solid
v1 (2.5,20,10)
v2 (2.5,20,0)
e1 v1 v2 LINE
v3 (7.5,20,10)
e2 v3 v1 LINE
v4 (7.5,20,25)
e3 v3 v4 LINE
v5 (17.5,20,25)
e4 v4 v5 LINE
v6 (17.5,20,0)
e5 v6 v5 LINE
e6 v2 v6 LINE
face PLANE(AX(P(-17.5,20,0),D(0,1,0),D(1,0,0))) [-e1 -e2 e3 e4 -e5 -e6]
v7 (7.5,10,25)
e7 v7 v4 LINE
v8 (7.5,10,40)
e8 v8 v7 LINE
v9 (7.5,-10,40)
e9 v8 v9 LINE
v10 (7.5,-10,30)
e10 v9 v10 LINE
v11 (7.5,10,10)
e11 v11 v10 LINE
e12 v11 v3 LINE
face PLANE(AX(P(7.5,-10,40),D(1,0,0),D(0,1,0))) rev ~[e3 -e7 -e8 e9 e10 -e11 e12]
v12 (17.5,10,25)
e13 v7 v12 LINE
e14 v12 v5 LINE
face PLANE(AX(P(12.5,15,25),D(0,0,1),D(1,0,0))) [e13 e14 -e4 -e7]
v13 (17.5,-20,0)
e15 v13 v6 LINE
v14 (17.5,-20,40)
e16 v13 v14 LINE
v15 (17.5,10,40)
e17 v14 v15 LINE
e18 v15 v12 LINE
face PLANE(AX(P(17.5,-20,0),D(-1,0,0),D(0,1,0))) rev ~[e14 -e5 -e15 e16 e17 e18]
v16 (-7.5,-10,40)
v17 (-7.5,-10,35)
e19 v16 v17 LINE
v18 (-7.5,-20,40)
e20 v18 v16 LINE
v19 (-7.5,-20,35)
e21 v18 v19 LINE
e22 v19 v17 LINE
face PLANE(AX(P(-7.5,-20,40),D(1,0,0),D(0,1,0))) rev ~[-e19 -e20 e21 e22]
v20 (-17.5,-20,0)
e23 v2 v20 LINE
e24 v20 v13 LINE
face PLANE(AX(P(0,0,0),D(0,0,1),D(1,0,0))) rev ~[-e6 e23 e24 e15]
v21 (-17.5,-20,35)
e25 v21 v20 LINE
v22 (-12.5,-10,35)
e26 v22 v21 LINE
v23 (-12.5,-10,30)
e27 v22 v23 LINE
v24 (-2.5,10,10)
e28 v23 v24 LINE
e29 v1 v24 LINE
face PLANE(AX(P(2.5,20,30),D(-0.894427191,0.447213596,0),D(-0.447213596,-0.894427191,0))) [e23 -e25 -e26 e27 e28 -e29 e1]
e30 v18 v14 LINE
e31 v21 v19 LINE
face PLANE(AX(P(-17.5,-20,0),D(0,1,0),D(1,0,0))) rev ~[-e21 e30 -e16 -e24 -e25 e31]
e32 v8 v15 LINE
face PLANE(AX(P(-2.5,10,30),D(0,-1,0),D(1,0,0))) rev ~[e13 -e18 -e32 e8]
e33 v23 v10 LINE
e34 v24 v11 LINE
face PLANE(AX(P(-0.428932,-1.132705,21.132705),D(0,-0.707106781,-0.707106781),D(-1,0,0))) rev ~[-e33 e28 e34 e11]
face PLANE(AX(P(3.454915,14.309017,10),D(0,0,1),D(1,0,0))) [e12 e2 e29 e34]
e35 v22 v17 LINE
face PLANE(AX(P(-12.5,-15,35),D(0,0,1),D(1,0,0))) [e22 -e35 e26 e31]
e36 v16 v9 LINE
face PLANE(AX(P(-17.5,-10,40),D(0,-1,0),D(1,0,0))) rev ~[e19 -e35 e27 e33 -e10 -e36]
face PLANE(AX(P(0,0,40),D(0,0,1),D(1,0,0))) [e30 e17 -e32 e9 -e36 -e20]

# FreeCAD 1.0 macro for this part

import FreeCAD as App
import Part
import Sketcher
from FreeCAD import Vector


def add_polygon(sketch, points):
    """Adds a closed chain of lines whose ends are joined by coincident constraints."""
    first, n = sketch.GeometryCount, len(points)
    for a, b in zip(points, points[1:] + points[:1]):
        sketch.addGeometry(Part.LineSegment(App.Vector(*a, 0), App.Vector(*b, 0)), False)
    for i in range(n):
        sketch.addConstraint(Sketcher.Constraint("Coincident", first + i, 2, first + (i + 1) % n, 1))

doc = App.newDocument("Part")
body = doc.addObject("PartDesign::Body", "Body")

# Sketch on XY plane
sketch1 = body.newObject("Sketcher::SketchObject", "Sketch")
sketch1.AttachmentSupport = (doc.getObject("XY_Plane"), [""])
sketch1.MapMode = "FlatFace"
add_polygon(sketch1, [(-18, 20), (-18, -20), (18, -20), (18, 20)])  # lines 0-3
sketch1.addConstraint(Sketcher.Constraint("Vertical", 0))
sketch1.addConstraint(Sketcher.Constraint("Horizontal", 1))
sketch1.addConstraint(Sketcher.Constraint("Vertical", 2))
sketch1.addConstraint(Sketcher.Constraint("Horizontal", 3))
sketch1.addConstraint(Sketcher.Constraint("Symmetric", 0, 2, 2, 2, -1, 1))
sketch1.addConstraint(Sketcher.Constraint("DistanceX", 1, 1, 1, 2, 35.0))
sketch1.addConstraint(Sketcher.Constraint("DistanceY", 0, 2, 0, 1, 40.0))
pad1 = body.newObject("PartDesign::Pad", "Pad")
pad1.Profile = sketch1
pad1.Length = 40

# Sketch on XY plane
sketch2 = body.newObject("Sketcher::SketchObject", "Sketch001")
sketch2.AttachmentSupport = (doc.getObject("XY_Plane"), [""])
sketch2.MapMode = "FlatFace"
sketch2.AttachmentOffset = App.Placement(Vector(0, 0, 40), App.Rotation())
add_polygon(sketch2, [(8, 20), (8, 10), (18, 10), (18, 20)])  # lines 0-3
sketch2.addConstraint(Sketcher.Constraint("Vertical", 0))
sketch2.addConstraint(Sketcher.Constraint("Horizontal", 1))
sketch2.addConstraint(Sketcher.Constraint("Vertical", 2))
sketch2.addConstraint(Sketcher.Constraint("Horizontal", 3))
sketch2.addConstraint(Sketcher.Constraint("Equal", 3, 0))
sketch2.addConstraint(Sketcher.Constraint("DistanceX", 1, 1, 1, 2, 10.0))
sketch2.addConstraint(Sketcher.Constraint("DistanceY", -1, 1, 0, 2, 10.0))
sketch2.addConstraint(Sketcher.Constraint("DistanceX", -1, 1, 0, 2, 7.5))
pocket1 = body.newObject("PartDesign::Pocket", "Pocket")
pocket1.Profile = sketch2
pocket1.Length = 15

# Sketch on XY plane
sketch3 = body.newObject("Sketcher::SketchObject", "Sketch002")
sketch3.AttachmentSupport = (doc.getObject("XY_Plane"), [""])
sketch3.MapMode = "FlatFace"
sketch3.AttachmentOffset = App.Placement(Vector(0, 0, 40), App.Rotation())
add_polygon(sketch3, [(-18, -10), (-18, -20), (-8, -20), (-8, -10)])  # lines 0-3
sketch3.addConstraint(Sketcher.Constraint("Vertical", 0))
sketch3.addConstraint(Sketcher.Constraint("Horizontal", 1))
sketch3.addConstraint(Sketcher.Constraint("Vertical", 2))
sketch3.addConstraint(Sketcher.Constraint("Horizontal", 3))
sketch3.addConstraint(Sketcher.Constraint("Equal", 3, 0))
sketch3.addConstraint(Sketcher.Constraint("DistanceX", 1, 1, 1, 2, 10.0))
sketch3.addConstraint(Sketcher.Constraint("DistanceY", 0, 2, -1, 1, 20.0))
sketch3.addConstraint(Sketcher.Constraint("DistanceX", 0, 2, -1, 1, 17.5))
pocket2 = body.newObject("PartDesign::Pocket", "Pocket001")
pocket2.Profile = sketch3
pocket2.Length = 5

# Sketch on XY plane
sketch4 = body.newObject("Sketcher::SketchObject", "Sketch003")
sketch4.AttachmentSupport = (doc.getObject("XY_Plane"), [""])
sketch4.MapMode = "FlatFace"
sketch4.AttachmentOffset = App.Placement(Vector(0, 0, 40), App.Rotation())
add_polygon(sketch4, [(-18, 20), (-18, -10), (8, -10), (8, 20)])  # lines 0-3
sketch4.addConstraint(Sketcher.Constraint("Vertical", 0))
sketch4.addConstraint(Sketcher.Constraint("Horizontal", 1))
sketch4.addConstraint(Sketcher.Constraint("Vertical", 2))
sketch4.addConstraint(Sketcher.Constraint("Horizontal", 3))
sketch4.addConstraint(Sketcher.Constraint("DistanceX", 1, 1, 1, 2, 25.0))
sketch4.addConstraint(Sketcher.Constraint("DistanceY", 0, 2, 0, 1, 30.0))
sketch4.addConstraint(Sketcher.Constraint("DistanceY", 0, 2, -1, 1, 10.0))
sketch4.addConstraint(Sketcher.Constraint("DistanceX", 0, 2, -1, 1, 17.5))
pocket3 = body.newObject("PartDesign::Pocket", "Pocket002")
pocket3.Profile = sketch4
pocket3.Length = 10

# Sketch on XY plane
sketch5 = body.newObject("Sketcher::SketchObject", "Sketch004")
sketch5.AttachmentSupport = (doc.getObject("XY_Plane"), [""])
sketch5.MapMode = "FlatFace"
sketch5.AttachmentOffset = App.Placement(Vector(0, 0, 30), App.Rotation())
add_polygon(sketch5, [(-18, -20), (2, 20), (-18, 20)])  # lines 0-2
sketch5.addConstraint(Sketcher.Constraint("Horizontal", 1))
sketch5.addConstraint(Sketcher.Constraint("Vertical", 2))
sketch5.addConstraint(Sketcher.Constraint("DistanceX", 1, 2, 1, 1, 20.0))
sketch5.addConstraint(Sketcher.Constraint("DistanceY", 2, 2, 2, 1, 40.0))
sketch5.addConstraint(Sketcher.Constraint("DistanceY", -1, 1, 0, 2, 20.0))
sketch5.addConstraint(Sketcher.Constraint("DistanceX", -1, 1, 0, 2, 2.5))
pocket4 = body.newObject("PartDesign::Pocket", "Pocket003")
pocket4.Profile = sketch5
pocket4.Type = "ThroughAll"

# Sketch on XY plane
sketch6 = body.newObject("Sketcher::SketchObject", "Sketch005")
sketch6.AttachmentSupport = (doc.getObject("XY_Plane"), [""])
sketch6.MapMode = "FlatFace"
sketch6.AttachmentOffset = App.Placement(Vector(0, 0, 35), App.Rotation())
add_polygon(sketch6, [(-18, -20), (-12, -10), (-18, -10)])  # lines 0-2
sketch6.addConstraint(Sketcher.Constraint("Horizontal", 1))
sketch6.addConstraint(Sketcher.Constraint("Vertical", 2))
sketch6.addConstraint(Sketcher.Constraint("DistanceX", 1, 2, 1, 1, 5.0))
sketch6.addConstraint(Sketcher.Constraint("DistanceY", 2, 2, 2, 1, 10.0))
sketch6.addConstraint(Sketcher.Constraint("DistanceY", 0, 2, -1, 1, 10.0))
sketch6.addConstraint(Sketcher.Constraint("DistanceX", 0, 2, -1, 1, 12.5))
pocket5 = body.newObject("PartDesign::Pocket", "Pocket004")
pocket5.Profile = sketch6
pocket5.Length = 10

# Sketch on XY plane
sketch7 = body.newObject("Sketcher::SketchObject", "Sketch006")
sketch7.AttachmentSupport = (doc.getObject("XY_Plane"), [""])
sketch7.MapMode = "FlatFace"
sketch7.AttachmentOffset = App.Placement(Vector(0, 0, 30), App.Rotation())
add_polygon(sketch7, [(8, 20), (2, 20), (-2, 10), (8, 10)])  # lines 0-3
sketch7.addConstraint(Sketcher.Constraint("Horizontal", 0))
sketch7.addConstraint(Sketcher.Constraint("Horizontal", 2))
sketch7.addConstraint(Sketcher.Constraint("Vertical", 3))
sketch7.addConstraint(Sketcher.Constraint("Equal", 2, 3))
sketch7.addConstraint(Sketcher.Constraint("DistanceX", 0, 2, 0, 1, 5.0))
sketch7.addConstraint(Sketcher.Constraint("DistanceX", 2, 1, 2, 2, 10.0))
sketch7.addConstraint(Sketcher.Constraint("DistanceY", -1, 1, 0, 2, 20.0))
sketch7.addConstraint(Sketcher.Constraint("DistanceX", -1, 1, 0, 2, 2.5))
pocket6 = body.newObject("PartDesign::Pocket", "Pocket005")
pocket6.Profile = sketch7
pocket6.Length = 20

# Sketch on an angled plane
sketch8 = body.newObject("Sketcher::SketchObject", "Sketch007")
sketch8.Placement = App.Placement(Vector(0, 10, 10), App.Rotation(Vector(1, 0, 0), Vector(0, 0.707106781, -0.707106781), Vector(0, 0.707106781, 0.707106781), "ZXY"))
add_polygon(sketch8, [(8, -28), (8, 0), (-2, 0), (-12, -28)])  # lines 0-3
sketch8.addConstraint(Sketcher.Constraint("Vertical", 0))
sketch8.addConstraint(Sketcher.Constraint("Horizontal", 1))
sketch8.addConstraint(Sketcher.Constraint("Horizontal", 3))
sketch8.addConstraint(Sketcher.Constraint("PointOnObject", 0, 2, -1))
sketch8.addConstraint(Sketcher.Constraint("DistanceX", 1, 2, 1, 1, 10.0))
sketch8.addConstraint(Sketcher.Constraint("DistanceX", 3, 1, 3, 2, 20.0))
sketch8.addConstraint(Sketcher.Constraint("Distance", 2, 30.0))
sketch8.addConstraint(Sketcher.Constraint("DistanceX", -1, 1, 0, 2, 7.5))
pocket7 = body.newObject("PartDesign::Pocket", "Pocket006")
pocket7.Profile = sketch8
pocket7.Length = 20
pocket7.Reversed = True

doc.recompute()
